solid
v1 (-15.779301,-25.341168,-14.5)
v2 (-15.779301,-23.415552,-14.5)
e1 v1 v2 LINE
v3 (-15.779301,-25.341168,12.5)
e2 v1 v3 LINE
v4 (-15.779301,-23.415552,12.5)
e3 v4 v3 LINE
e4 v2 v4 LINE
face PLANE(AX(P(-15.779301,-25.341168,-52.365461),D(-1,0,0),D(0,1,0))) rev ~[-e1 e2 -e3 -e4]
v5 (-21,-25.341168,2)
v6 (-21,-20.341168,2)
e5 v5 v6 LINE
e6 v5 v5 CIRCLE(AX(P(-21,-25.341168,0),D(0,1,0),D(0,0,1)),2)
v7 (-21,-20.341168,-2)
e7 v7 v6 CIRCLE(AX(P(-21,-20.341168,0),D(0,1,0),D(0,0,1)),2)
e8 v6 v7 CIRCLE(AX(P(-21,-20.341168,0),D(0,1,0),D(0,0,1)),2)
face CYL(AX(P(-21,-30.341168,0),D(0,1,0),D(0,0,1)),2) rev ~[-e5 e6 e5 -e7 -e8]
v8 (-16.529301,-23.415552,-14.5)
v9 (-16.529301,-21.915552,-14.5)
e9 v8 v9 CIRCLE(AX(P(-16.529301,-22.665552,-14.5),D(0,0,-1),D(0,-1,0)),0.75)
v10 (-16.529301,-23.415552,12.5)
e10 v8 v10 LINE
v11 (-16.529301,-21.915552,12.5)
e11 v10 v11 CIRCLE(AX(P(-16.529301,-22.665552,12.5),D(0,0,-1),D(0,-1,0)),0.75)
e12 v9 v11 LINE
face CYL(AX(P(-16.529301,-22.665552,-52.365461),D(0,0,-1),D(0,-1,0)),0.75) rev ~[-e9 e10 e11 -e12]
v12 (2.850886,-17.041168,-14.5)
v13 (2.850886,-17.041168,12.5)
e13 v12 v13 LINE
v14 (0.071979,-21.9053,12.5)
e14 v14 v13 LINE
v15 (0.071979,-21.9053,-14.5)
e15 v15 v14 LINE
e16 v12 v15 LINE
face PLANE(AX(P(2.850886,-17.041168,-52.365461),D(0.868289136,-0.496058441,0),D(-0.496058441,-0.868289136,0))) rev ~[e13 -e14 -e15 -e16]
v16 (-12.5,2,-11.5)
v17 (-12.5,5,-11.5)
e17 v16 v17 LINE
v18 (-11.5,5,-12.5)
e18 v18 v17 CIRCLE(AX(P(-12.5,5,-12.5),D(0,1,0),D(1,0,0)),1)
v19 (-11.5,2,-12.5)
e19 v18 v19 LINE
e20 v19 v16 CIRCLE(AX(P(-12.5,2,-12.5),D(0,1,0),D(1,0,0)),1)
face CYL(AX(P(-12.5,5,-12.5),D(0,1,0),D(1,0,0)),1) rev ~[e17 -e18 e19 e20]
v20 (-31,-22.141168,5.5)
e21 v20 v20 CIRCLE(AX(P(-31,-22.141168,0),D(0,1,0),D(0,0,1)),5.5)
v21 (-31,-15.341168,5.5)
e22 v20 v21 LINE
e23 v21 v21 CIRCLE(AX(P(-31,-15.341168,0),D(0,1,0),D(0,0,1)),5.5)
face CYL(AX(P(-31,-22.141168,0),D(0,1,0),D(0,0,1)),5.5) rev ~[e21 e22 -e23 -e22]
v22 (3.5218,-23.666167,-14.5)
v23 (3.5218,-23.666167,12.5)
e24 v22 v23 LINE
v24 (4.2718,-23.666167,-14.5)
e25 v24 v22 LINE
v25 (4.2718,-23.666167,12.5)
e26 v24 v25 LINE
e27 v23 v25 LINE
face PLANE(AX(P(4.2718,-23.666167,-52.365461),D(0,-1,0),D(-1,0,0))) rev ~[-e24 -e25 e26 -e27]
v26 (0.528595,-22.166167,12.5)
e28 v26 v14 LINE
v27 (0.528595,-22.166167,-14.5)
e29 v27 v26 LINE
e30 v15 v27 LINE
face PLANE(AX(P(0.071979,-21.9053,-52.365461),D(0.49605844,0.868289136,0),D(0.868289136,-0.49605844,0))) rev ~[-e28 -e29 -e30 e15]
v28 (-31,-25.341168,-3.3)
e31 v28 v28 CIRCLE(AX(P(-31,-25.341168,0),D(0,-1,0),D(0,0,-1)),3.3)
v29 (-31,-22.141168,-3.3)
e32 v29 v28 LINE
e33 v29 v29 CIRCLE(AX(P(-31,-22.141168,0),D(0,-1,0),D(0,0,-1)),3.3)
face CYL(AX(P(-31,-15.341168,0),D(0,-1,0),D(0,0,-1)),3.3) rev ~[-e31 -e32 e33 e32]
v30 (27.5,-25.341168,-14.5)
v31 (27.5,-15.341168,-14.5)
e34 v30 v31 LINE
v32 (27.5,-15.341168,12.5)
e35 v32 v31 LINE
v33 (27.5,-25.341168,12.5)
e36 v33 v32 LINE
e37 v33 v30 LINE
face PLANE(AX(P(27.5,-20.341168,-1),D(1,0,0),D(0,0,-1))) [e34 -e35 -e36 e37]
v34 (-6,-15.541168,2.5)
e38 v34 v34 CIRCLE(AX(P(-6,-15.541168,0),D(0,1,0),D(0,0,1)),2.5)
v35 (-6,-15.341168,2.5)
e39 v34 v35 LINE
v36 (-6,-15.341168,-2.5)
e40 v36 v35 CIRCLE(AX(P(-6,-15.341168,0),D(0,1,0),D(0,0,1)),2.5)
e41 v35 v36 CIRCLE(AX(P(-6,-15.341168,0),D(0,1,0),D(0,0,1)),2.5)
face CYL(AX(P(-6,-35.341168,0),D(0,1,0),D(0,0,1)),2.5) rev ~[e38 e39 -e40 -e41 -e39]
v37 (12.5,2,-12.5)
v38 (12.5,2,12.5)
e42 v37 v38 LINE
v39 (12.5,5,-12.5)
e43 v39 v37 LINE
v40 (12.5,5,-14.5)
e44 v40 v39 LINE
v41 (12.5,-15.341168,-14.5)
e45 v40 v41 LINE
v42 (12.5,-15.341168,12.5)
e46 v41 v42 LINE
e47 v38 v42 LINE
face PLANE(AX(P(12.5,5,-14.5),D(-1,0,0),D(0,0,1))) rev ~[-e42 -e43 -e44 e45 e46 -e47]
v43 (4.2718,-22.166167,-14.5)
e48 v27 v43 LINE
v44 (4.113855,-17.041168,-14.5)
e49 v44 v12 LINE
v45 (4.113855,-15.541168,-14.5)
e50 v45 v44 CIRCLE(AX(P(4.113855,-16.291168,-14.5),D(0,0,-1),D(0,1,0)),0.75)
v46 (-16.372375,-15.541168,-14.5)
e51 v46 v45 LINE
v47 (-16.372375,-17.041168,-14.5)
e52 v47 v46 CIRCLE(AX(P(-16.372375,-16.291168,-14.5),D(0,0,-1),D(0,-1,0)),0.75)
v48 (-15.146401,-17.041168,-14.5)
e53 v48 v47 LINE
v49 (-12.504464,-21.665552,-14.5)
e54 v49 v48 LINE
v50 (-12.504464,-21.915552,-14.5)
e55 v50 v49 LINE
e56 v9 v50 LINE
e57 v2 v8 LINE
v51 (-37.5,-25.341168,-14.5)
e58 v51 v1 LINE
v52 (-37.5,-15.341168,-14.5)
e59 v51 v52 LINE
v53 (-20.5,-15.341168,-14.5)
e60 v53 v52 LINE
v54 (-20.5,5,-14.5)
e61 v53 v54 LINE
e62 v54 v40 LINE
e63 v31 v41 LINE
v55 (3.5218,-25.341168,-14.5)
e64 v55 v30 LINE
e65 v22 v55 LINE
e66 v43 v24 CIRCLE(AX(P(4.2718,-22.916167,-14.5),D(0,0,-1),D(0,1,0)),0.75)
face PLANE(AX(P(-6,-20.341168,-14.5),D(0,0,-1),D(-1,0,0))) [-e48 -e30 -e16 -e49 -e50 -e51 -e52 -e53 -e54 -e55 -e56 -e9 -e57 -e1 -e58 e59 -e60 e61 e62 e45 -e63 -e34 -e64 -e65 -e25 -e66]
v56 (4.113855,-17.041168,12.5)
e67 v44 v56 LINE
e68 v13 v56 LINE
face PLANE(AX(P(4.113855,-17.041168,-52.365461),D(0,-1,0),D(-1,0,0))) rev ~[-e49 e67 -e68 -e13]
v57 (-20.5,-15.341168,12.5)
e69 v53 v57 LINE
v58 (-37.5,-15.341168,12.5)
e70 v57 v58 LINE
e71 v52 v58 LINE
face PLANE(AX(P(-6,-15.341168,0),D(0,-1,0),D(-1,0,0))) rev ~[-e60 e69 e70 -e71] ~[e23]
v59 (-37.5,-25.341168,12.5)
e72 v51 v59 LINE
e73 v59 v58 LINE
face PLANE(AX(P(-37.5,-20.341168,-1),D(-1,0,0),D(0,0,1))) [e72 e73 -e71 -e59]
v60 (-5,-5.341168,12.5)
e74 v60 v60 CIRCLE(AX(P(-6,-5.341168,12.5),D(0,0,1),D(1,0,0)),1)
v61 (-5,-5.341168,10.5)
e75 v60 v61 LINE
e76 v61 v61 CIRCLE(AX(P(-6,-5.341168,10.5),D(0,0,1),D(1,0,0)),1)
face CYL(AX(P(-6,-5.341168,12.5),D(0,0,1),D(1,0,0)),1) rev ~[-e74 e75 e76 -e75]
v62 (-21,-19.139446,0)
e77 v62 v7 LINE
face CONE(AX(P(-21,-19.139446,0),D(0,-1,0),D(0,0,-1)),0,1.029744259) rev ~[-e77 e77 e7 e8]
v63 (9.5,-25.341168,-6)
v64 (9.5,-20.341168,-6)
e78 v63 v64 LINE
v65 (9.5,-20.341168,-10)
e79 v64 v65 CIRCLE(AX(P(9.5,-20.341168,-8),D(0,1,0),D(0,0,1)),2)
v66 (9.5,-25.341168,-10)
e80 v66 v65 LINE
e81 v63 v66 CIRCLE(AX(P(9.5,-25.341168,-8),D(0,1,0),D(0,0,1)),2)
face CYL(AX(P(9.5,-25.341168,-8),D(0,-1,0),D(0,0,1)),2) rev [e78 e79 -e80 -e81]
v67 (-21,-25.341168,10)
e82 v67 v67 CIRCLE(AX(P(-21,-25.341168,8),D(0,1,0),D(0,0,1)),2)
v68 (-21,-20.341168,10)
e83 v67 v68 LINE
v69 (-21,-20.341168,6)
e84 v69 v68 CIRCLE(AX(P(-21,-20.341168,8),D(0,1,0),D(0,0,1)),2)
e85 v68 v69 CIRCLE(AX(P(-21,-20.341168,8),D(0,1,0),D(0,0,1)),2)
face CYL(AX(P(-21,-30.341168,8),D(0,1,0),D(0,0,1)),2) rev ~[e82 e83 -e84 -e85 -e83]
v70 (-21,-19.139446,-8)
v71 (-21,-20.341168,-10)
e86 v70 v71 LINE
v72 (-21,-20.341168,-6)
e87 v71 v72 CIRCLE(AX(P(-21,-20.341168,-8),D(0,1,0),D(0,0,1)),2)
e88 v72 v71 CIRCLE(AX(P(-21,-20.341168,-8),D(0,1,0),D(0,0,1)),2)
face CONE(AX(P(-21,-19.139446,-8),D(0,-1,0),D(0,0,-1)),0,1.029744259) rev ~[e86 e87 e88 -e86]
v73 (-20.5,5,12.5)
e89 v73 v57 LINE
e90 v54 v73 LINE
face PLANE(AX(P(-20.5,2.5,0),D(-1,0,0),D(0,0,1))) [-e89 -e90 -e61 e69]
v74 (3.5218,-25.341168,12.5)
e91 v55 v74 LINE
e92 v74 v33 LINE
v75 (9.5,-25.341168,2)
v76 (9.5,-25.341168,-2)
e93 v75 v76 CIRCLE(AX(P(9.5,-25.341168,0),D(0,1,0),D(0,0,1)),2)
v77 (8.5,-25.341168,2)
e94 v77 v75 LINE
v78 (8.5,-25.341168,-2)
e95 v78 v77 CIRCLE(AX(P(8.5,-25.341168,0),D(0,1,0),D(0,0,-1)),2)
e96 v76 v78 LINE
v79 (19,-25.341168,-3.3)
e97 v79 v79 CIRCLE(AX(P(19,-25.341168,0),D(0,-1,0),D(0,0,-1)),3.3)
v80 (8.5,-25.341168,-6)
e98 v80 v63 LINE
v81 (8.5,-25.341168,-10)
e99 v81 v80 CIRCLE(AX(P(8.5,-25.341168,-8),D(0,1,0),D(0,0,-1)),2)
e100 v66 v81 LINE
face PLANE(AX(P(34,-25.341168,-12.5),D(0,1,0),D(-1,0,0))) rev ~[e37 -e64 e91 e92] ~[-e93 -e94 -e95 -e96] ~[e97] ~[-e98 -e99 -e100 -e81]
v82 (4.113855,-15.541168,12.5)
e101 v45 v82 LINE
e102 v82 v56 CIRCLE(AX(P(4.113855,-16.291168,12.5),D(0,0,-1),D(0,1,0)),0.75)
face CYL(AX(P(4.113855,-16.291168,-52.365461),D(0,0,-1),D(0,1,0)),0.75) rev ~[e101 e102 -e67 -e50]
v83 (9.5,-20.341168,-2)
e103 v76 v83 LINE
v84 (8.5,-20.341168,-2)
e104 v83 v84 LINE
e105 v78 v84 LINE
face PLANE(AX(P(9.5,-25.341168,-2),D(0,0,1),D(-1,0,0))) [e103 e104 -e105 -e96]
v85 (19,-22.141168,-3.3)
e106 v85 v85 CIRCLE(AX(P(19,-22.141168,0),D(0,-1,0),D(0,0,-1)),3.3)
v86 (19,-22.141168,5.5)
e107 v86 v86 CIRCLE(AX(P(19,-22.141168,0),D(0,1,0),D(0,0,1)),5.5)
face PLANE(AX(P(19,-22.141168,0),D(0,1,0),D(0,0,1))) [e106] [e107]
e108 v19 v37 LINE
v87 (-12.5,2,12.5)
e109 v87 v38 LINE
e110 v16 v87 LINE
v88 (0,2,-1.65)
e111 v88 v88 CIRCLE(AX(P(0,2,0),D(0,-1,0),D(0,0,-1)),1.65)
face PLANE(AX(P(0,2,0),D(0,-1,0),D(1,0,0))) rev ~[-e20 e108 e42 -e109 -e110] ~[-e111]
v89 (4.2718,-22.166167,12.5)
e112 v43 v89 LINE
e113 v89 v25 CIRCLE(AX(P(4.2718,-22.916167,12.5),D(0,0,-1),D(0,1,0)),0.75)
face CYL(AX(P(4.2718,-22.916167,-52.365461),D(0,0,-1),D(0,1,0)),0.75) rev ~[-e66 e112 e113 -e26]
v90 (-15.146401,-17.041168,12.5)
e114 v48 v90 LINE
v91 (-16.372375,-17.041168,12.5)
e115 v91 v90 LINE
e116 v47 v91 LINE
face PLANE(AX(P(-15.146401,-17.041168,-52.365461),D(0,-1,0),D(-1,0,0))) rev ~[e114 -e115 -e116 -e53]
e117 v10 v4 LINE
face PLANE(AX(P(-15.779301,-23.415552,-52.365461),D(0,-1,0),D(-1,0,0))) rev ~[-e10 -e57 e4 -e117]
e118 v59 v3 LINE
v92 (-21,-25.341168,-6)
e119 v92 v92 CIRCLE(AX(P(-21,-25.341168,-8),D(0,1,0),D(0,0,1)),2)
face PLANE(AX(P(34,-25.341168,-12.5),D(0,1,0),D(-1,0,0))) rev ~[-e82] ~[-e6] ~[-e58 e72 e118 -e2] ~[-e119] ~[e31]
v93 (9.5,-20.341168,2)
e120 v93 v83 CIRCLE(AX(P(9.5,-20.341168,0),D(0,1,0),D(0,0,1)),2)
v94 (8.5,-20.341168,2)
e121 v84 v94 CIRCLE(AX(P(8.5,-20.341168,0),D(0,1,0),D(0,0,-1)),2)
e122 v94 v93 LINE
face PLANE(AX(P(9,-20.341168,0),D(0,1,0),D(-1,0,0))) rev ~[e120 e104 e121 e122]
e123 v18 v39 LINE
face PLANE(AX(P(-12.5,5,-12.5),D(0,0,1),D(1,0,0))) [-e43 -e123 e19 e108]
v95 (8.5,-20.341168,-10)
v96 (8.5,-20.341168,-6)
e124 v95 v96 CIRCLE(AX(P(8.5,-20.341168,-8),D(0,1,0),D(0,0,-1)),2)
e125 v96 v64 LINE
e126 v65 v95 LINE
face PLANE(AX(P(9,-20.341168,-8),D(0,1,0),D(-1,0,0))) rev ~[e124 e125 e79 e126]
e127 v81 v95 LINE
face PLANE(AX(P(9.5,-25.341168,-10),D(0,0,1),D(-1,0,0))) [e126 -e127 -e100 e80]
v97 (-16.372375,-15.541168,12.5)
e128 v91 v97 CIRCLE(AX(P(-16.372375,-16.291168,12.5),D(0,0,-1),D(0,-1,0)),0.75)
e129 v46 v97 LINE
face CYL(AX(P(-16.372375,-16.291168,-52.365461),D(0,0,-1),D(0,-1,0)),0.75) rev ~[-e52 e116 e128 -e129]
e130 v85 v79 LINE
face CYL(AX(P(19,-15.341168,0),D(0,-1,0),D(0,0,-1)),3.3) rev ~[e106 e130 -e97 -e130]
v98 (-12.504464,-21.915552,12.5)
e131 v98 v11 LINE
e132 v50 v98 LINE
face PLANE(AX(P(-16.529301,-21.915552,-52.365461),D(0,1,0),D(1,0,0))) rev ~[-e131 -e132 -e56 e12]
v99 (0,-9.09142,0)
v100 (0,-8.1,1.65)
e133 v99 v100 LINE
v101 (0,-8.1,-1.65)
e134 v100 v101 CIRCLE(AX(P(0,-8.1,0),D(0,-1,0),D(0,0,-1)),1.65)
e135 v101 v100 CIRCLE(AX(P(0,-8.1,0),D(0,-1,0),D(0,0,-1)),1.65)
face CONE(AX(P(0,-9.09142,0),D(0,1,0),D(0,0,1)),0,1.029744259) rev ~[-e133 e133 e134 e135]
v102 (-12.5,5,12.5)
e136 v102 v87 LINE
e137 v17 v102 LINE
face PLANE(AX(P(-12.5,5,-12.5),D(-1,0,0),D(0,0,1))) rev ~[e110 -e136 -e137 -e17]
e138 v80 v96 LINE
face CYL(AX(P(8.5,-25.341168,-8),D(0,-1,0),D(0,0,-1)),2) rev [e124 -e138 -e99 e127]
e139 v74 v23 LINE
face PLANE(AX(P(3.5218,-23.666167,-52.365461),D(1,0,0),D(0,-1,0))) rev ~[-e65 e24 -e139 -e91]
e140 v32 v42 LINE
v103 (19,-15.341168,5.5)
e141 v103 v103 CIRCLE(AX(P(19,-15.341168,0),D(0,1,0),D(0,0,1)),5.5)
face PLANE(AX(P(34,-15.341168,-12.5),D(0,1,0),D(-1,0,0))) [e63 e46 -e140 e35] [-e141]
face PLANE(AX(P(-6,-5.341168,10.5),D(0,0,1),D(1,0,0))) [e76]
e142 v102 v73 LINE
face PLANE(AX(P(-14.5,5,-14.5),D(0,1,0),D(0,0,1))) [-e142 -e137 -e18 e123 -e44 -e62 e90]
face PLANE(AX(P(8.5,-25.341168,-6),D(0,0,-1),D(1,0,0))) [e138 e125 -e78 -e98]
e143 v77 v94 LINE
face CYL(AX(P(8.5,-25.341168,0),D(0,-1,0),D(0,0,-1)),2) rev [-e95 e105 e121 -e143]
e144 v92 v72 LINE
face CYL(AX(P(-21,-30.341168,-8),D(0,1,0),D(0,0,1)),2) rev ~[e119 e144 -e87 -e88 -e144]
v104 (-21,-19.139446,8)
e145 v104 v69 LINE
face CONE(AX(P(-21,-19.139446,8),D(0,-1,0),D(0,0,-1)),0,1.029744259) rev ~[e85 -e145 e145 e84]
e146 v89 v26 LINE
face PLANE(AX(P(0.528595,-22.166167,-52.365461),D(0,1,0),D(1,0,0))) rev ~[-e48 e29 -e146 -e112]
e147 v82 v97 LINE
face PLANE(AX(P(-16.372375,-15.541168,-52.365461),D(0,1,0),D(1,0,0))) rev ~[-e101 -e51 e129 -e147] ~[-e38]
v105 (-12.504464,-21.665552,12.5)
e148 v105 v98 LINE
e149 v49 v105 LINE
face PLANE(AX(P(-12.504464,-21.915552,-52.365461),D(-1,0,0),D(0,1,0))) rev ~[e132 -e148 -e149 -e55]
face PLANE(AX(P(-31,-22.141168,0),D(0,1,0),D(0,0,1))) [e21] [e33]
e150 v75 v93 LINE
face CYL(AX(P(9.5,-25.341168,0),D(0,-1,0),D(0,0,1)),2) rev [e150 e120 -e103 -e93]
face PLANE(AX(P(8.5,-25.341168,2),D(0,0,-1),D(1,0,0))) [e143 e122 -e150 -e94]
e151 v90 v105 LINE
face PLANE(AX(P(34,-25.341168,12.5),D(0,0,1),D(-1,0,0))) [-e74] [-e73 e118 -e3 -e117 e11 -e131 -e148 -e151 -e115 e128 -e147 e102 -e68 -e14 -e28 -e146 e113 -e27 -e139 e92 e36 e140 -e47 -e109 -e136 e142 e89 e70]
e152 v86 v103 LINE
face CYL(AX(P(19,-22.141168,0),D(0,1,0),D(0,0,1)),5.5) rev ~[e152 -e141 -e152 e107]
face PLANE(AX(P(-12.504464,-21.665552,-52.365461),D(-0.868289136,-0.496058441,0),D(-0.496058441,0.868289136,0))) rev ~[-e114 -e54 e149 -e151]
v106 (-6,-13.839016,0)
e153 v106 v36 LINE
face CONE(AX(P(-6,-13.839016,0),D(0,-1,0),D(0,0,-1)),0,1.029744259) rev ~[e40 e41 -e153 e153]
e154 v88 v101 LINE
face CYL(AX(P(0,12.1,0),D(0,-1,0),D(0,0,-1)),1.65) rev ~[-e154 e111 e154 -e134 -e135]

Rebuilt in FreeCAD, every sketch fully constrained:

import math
import FreeCAD as App
import Part
import Sketcher

V = App.Vector
Q = App.Units.Quantity

doc = App.newDocument("Part")
body = doc.addObject("PartDesign::Body", "Body")

sketch1 = doc.addObject("Sketcher::SketchObject", "Sketch")
body.addObject(sketch1)
sketch1.AttachmentSupport = (doc.XZ_Plane, [""])
sketch1.MapMode = "FlatFace"
sketch1.addGeometry(Part.LineSegment(V(-14.5, -14.5, 0), V(-14.5, 14.5, 0)), False)
sketch1.addGeometry(Part.LineSegment(V(-14.5, 14.5, 0), V(14.5, 14.5, 0)), False)
sketch1.addGeometry(Part.LineSegment(V(14.5, 14.5, 0), V(14.5, -14.5, 0)), False)
sketch1.addGeometry(Part.LineSegment(V(14.5, -14.5, 0), V(-14.5, -14.5, 0)), False)
sketch1.addConstraint(Sketcher.Constraint("Coincident", 0, 2, 1, 1))
sketch1.addConstraint(Sketcher.Constraint("Coincident", 1, 2, 2, 1))
sketch1.addConstraint(Sketcher.Constraint("Coincident", 2, 2, 3, 1))
sketch1.addConstraint(Sketcher.Constraint("Coincident", 3, 2, 0, 1))
sketch1.addConstraint(Sketcher.Constraint("Vertical", 0))
sketch1.addConstraint(Sketcher.Constraint("Horizontal", 1))
sketch1.addConstraint(Sketcher.Constraint("Vertical", 2))
sketch1.addConstraint(Sketcher.Constraint("Horizontal", 3))
sketch1.addConstraint(Sketcher.Constraint("Symmetric", 0, 2, 2, 2, -1, 1))
sketch1.addConstraint(Sketcher.Constraint("Equal", 3, 0))
sketch1.addConstraint(Sketcher.Constraint("DistanceX", 1, 1, 1, 2, Q("29 mm")))
pad1 = doc.addObject("PartDesign::Pad", "Pad")
body.addObject(pad1)
pad1.Profile = sketch1
pad1.Length = 5
pad1.Reversed = True

sketch2 = doc.addObject("Sketcher::SketchObject", "Sketch001")
body.addObject(sketch2)
sketch2.AttachmentSupport = (doc.XZ_Plane, [""])
sketch2.MapMode = "FlatFace"
sketch2.AttachmentOffset = App.Placement(V(0, 0, -5), App.Rotation())
sketch2.addGeometry(Part.LineSegment(V(-12.5, 12.5, 0), V(-12.5, -12.5, 0)), False)
sketch2.addGeometry(Part.LineSegment(V(-12.5, -12.5, 0), V(12.5, -12.5, 0)), False)
sketch2.addGeometry(Part.LineSegment(V(12.5, -12.5, 0), V(12.5, 12.5, 0)), False)
sketch2.addGeometry(Part.LineSegment(V(12.5, 12.5, 0), V(-12.5, 12.5, 0)), False)
sketch2.addConstraint(Sketcher.Constraint("Coincident", 0, 2, 1, 1))
sketch2.addConstraint(Sketcher.Constraint("Coincident", 1, 2, 2, 1))
sketch2.addConstraint(Sketcher.Constraint("Coincident", 2, 2, 3, 1))
sketch2.addConstraint(Sketcher.Constraint("Coincident", 3, 2, 0, 1))
sketch2.addConstraint(Sketcher.Constraint("Vertical", 0))
sketch2.addConstraint(Sketcher.Constraint("Horizontal", 1))
sketch2.addConstraint(Sketcher.Constraint("Vertical", 2))
sketch2.addConstraint(Sketcher.Constraint("Horizontal", 3))
sketch2.addConstraint(Sketcher.Constraint("Symmetric", 0, 2, 2, 2, -1, 1))
sketch2.addConstraint(Sketcher.Constraint("Equal", 3, 0))
sketch2.addConstraint(Sketcher.Constraint("DistanceX", 1, 1, 1, 2, Q("25 mm")))
pocket1 = doc.addObject("PartDesign::Pocket", "Pocket")
body.addObject(pocket1)
pocket1.Profile = sketch2
pocket1.Length = 3
pocket1.Reversed = True

sketch3 = doc.addObject("Sketcher::SketchObject", "Sketch002")
body.addObject(sketch3)
sketch3.AttachmentSupport = (doc.XZ_Plane, [""])
sketch3.MapMode = "FlatFace"
sketch3.addGeometry(Part.LineSegment(V(14.5, -14.5, 0), V(14.5, 14.5, 0)), False)
sketch3.addGeometry(Part.LineSegment(V(14.5, 14.5, 0), V(-20.5, 14.5, 0)), False)
sketch3.addGeometry(Part.LineSegment(V(-20.5, 14.5, 0), V(-20.5, -14.5, 0)), False)
sketch3.addGeometry(Part.LineSegment(V(-20.5, -14.5, 0), V(14.5, -14.5, 0)), False)
sketch3.addConstraint(Sketcher.Constraint("Coincident", 0, 2, 1, 1))
sketch3.addConstraint(Sketcher.Constraint("Coincident", 1, 2, 2, 1))
sketch3.addConstraint(Sketcher.Constraint("Coincident", 2, 2, 3, 1))
sketch3.addConstraint(Sketcher.Constraint("Coincident", 3, 2, 0, 1))
sketch3.addConstraint(Sketcher.Constraint("Vertical", 0))
sketch3.addConstraint(Sketcher.Constraint("Horizontal", 1))
sketch3.addConstraint(Sketcher.Constraint("Vertical", 2))
sketch3.addConstraint(Sketcher.Constraint("Horizontal", 3))
sketch3.addConstraint(Sketcher.Constraint("DistanceX", 1, 2, 1, 1, Q("35 mm")))
sketch3.addConstraint(Sketcher.Constraint("DistanceY", 0, 1, 0, 2, Q("29 mm")))
sketch3.addConstraint(Sketcher.Constraint("DistanceX", -1, 1, 0, 2, Q("14.5 mm")))
sketch3.addConstraint(Sketcher.Constraint("DistanceY", -1, 1, 0, 2, Q("14.5 mm")))
pad2 = doc.addObject("PartDesign::Pad", "Pad001")
body.addObject(pad2)
pad2.Profile = sketch3
pad2.Length = 25.341168

sketch4 = doc.addObject("Sketcher::SketchObject", "Sketch003")
body.addObject(sketch4)
sketch4.AttachmentSupport = (doc.XZ_Plane, [""])
sketch4.MapMode = "FlatFace"
sketch4.AttachmentOffset = App.Placement(V(0, 0, -2), App.Rotation())
sketch4.addGeometry(Part.Circle(V(0, 0, 0), V(0, 0, 1), 1.65), False)
sketch4.addConstraint(Sketcher.Constraint("Coincident", 0, 3, -1, 1))
sketch4.addConstraint(Sketcher.Constraint("Diameter", 0, Q("3.3 mm")))
doc.recompute()
hole = doc.addObject("PartDesign::Hole", "Hole")
body.addObject(hole)
hole.Profile = sketch4
hole.ThreadType = "None"
hole.Diameter = 3.3
hole.DepthType = "Dimension"
hole.Depth = 10.1
hole.DrillPoint = "Angled"
hole.DrillPointAngle = 118
hole.Reversed = True

sketch5 = doc.addObject("Sketcher::SketchObject", "Sketch004")
body.addObject(sketch5)
sketch5.AttachmentSupport = (doc.XZ_Plane, [""])
sketch5.MapMode = "FlatFace"
sketch5.AttachmentOffset = App.Placement(V(0, 0, -5), App.Rotation())
sketch5.addGeometry(Part.Circle(V(-12.5, -12.5, 0), V(0, 0, 1), 1), False)
sketch5.addConstraint(Sketcher.Constraint("Diameter", 0, Q("2 mm")))
sketch5.addConstraint(Sketcher.Constraint("DistanceX", 0, 3, -1, 1, Q("12.5 mm")))
sketch5.addConstraint(Sketcher.Constraint("DistanceY", 0, 3, -1, 1, Q("12.5 mm")))
pocket2 = doc.addObject("PartDesign::Pocket", "Pocket001")
body.addObject(pocket2)
pocket2.Profile = sketch5
pocket2.Length = 3
pocket2.Reversed = True

sketch6 = doc.addObject("Sketcher::SketchObject", "Sketch005")
body.addObject(sketch6)
sketch6.AttachmentSupport = (doc.YZ_Plane, [""])
sketch6.MapMode = "FlatFace"
sketch6.AttachmentOffset = App.Placement(V(0, 0, -14.5), App.Rotation())
sketch6.addGeometry(Part.LineSegment(V(5, -14.5, 0), V(0, -14.5, 0)), False)
sketch6.addGeometry(Part.LineSegment(V(0, -14.5, 0), V(0, 14.5, 0)), False)
sketch6.addGeometry(Part.LineSegment(V(0, 14.5, 0), V(5, 14.5, 0)), False)
sketch6.addGeometry(Part.LineSegment(V(5, 14.5, 0), V(5, -14.5, 0)), False)
sketch6.addConstraint(Sketcher.Constraint("Coincident", 0, 2, 1, 1))
sketch6.addConstraint(Sketcher.Constraint("Coincident", 1, 2, 2, 1))
sketch6.addConstraint(Sketcher.Constraint("Coincident", 2, 2, 3, 1))
sketch6.addConstraint(Sketcher.Constraint("Coincident", 3, 2, 0, 1))
sketch6.addConstraint(Sketcher.Constraint("Horizontal", 0))
sketch6.addConstraint(Sketcher.Constraint("Vertical", 1))
sketch6.addConstraint(Sketcher.Constraint("Horizontal", 2))
sketch6.addConstraint(Sketcher.Constraint("Vertical", 3))
sketch6.addConstraint(Sketcher.Constraint("Symmetric", 0, 2, 1, 2, -1, 1))
sketch6.addConstraint(Sketcher.Constraint("DistanceX", 0, 2, 0, 1, Q("5 mm")))
sketch6.addConstraint(Sketcher.Constraint("DistanceY", 1, 1, 1, 2, Q("29 mm")))
pad3 = doc.addObject("PartDesign::Pad", "Pad002")
body.addObject(pad3)
pad3.Profile = sketch6
pad3.Length = 6
pad3.Reversed = True

sketch7 = doc.addObject("Sketcher::SketchObject", "Sketch006")
body.addObject(sketch7)
sketch7.AttachmentSupport = (doc.XZ_Plane, [""])
sketch7.MapMode = "FlatFace"
sketch7.AttachmentOffset = App.Placement(V(0, 0, -5), App.Rotation())
sketch7.addGeometry(Part.LineSegment(V(-20.5, 14.5, 0), V(14.5, 14.5, 0)), False)
sketch7.addGeometry(Part.LineSegment(V(14.5, 14.5, 0), V(14.5, -14.5, 0)), False)
sketch7.addGeometry(Part.LineSegment(V(14.5, -14.5, 0), V(12.5, -14.5, 0)), False)
sketch7.addGeometry(Part.LineSegment(V(12.5, -14.5, 0), V(12.5, 12.5, 0)), False)
sketch7.addGeometry(Part.LineSegment(V(12.5, 12.5, 0), V(-20.5, 12.5, 0)), False)
sketch7.addGeometry(Part.LineSegment(V(-20.5, 12.5, 0), V(-20.5, 14.5, 0)), False)
sketch7.addConstraint(Sketcher.Constraint("Coincident", 0, 2, 1, 1))
sketch7.addConstraint(Sketcher.Constraint("Coincident", 1, 2, 2, 1))
sketch7.addConstraint(Sketcher.Constraint("Coincident", 2, 2, 3, 1))
sketch7.addConstraint(Sketcher.Constraint("Coincident", 3, 2, 4, 1))
sketch7.addConstraint(Sketcher.Constraint("Coincident", 4, 2, 5, 1))
sketch7.addConstraint(Sketcher.Constraint("Coincident", 5, 2, 0, 1))
sketch7.addConstraint(Sketcher.Constraint("Horizontal", 0))
sketch7.addConstraint(Sketcher.Constraint("Vertical", 1))
sketch7.addConstraint(Sketcher.Constraint("Horizontal", 2))
sketch7.addConstraint(Sketcher.Constraint("Vertical", 3))
sketch7.addConstraint(Sketcher.Constraint("Horizontal", 4))
sketch7.addConstraint(Sketcher.Constraint("Vertical", 5))
sketch7.addConstraint(Sketcher.Constraint("Equal", 2, 5))
sketch7.addConstraint(Sketcher.Constraint("DistanceX", 0, 1, 0, 2, Q("35 mm")))
sketch7.addConstraint(Sketcher.Constraint("DistanceX", 2, 2, 2, 1, Q("2 mm")))
sketch7.addConstraint(Sketcher.Constraint("DistanceY", 1, 2, 1, 1, Q("29 mm")))
sketch7.addConstraint(Sketcher.Constraint("DistanceX", -1, 1, 0, 2, Q("14.5 mm")))
sketch7.addConstraint(Sketcher.Constraint("DistanceY", -1, 1, 0, 2, Q("14.5 mm")))
pocket3 = doc.addObject("PartDesign::Pocket", "Pocket002")
body.addObject(pocket3)
pocket3.Profile = sketch7
pocket3.Type = "ThroughAll"
pocket3.Reversed = True

sketch8 = doc.addObject("Sketcher::SketchObject", "Sketch007")
body.addObject(sketch8)
sketch8.AttachmentSupport = (doc.XZ_Plane, [""])
sketch8.MapMode = "FlatFace"
sketch8.AttachmentOffset = App.Placement(V(0, 0, 25.341168), App.Rotation())
sketch8.addGeometry(Part.LineSegment(V(34, -12.5, 0), V(34, 12.5, 0)), False)
sketch8.addGeometry(Part.LineSegment(V(34, 12.5, 0), V(-46, 12.5, 0)), False)
sketch8.addGeometry(Part.LineSegment(V(-46, 12.5, 0), V(-46, -12.5, 0)), False)
sketch8.addGeometry(Part.LineSegment(V(-46, -12.5, 0), V(34, -12.5, 0)), False)
sketch8.addConstraint(Sketcher.Constraint("Coincident", 0, 2, 1, 1))
sketch8.addConstraint(Sketcher.Constraint("Coincident", 1, 2, 2, 1))
sketch8.addConstraint(Sketcher.Constraint("Coincident", 2, 2, 3, 1))
sketch8.addConstraint(Sketcher.Constraint("Coincident", 3, 2, 0, 1))
sketch8.addConstraint(Sketcher.Constraint("Vertical", 0))
sketch8.addConstraint(Sketcher.Constraint("Horizontal", 1))
sketch8.addConstraint(Sketcher.Constraint("Vertical", 2))
sketch8.addConstraint(Sketcher.Constraint("Horizontal", 3))
sketch8.addConstraint(Sketcher.Constraint("DistanceX", 1, 2, 1, 1, Q("80 mm")))
sketch8.addConstraint(Sketcher.Constraint("DistanceY", 0, 1, 0, 2, Q("25 mm")))
sketch8.addConstraint(Sketcher.Constraint("DistanceX", -1, 1, 0, 2, Q("34 mm")))
sketch8.addConstraint(Sketcher.Constraint("DistanceY", -1, 1, 0, 2, Q("12.5 mm")))
pad4 = doc.addObject("PartDesign::Pad", "Pad003")
body.addObject(pad4)
pad4.Profile = sketch8
pad4.Length = 10
pad4.Reversed = True

sketch9 = doc.addObject("Sketcher::SketchObject", "Sketch008")
body.addObject(sketch9)
sketch9.AttachmentSupport = (doc.XZ_Plane, [""])
sketch9.MapMode = "FlatFace"
sketch9.AttachmentOffset = App.Placement(V(0, 0, 15.341168), App.Rotation())
sketch9.addGeometry(Part.Circle(V(-31, 0, 0), V(0, 0, 1), 3.3), False)
sketch9.addGeometry(Part.Circle(V(19, 0, 0), V(0, 0, 1), 3.3), False)
sketch9.addConstraint(Sketcher.Constraint("Equal", 0, 1))
sketch9.addConstraint(Sketcher.Constraint("PointOnObject", 0, 3, -1))
sketch9.addConstraint(Sketcher.Constraint("PointOnObject", 1, 3, -1))
sketch9.addConstraint(Sketcher.Constraint("Diameter", 0, Q("6.6 mm")))
sketch9.addConstraint(Sketcher.Constraint("DistanceX", 0, 3, -1, 1, Q("31 mm")))
sketch9.addConstraint(Sketcher.Constraint("DistanceX", -1, 1, 1, 3, Q("19 mm")))
doc.recompute()
hole2 = doc.addObject("PartDesign::Hole", "Hole001")
body.addObject(hole2)
hole2.Profile = sketch9
hole2.ThreadType = "None"
hole2.Diameter = 6.6
hole2.DepthType = "Dimension"
hole2.Depth = 10.1
hole2.DrillPoint = "Angled"
hole2.DrillPointAngle = 118
hole2.HoleCutType = "Counterbore"
hole2.HoleCutDiameter = 11
hole2.HoleCutDepth = 6.8
hole2.Reversed = True

sketch10 = doc.addObject("Sketcher::SketchObject", "Sketch009")
body.addObject(sketch10)
sketch10.AttachmentSupport = (doc.XY_Plane, [""])
sketch10.MapMode = "FlatFace"
sketch10.AttachmentOffset = App.Placement(V(0, 0, -12.5), App.Rotation())
sketch10.addGeometry(Part.LineSegment(V(34, -15.341168, 0), V(34, -25.341168, 0)), False)
sketch10.addGeometry(Part.LineSegment(V(34, -25.341168, 0), V(-46, -25.341168, 0)), False)
sketch10.addGeometry(Part.LineSegment(V(-46, -25.341168, 0), V(-46, -15.341168, 0)), False)
sketch10.addGeometry(Part.LineSegment(V(-46, -15.341168, 0), V(34, -15.341168, 0)), False)
sketch10.addConstraint(Sketcher.Constraint("Coincident", 0, 2, 1, 1))
sketch10.addConstraint(Sketcher.Constraint("Coincident", 1, 2, 2, 1))
sketch10.addConstraint(Sketcher.Constraint("Coincident", 2, 2, 3, 1))
sketch10.addConstraint(Sketcher.Constraint("Coincident", 3, 2, 0, 1))
sketch10.addConstraint(Sketcher.Constraint("Vertical", 0))
sketch10.addConstraint(Sketcher.Constraint("Horizontal", 1))
sketch10.addConstraint(Sketcher.Constraint("Vertical", 2))
sketch10.addConstraint(Sketcher.Constraint("Horizontal", 3))
sketch10.addConstraint(Sketcher.Constraint("DistanceX", 1, 2, 1, 1, Q("80 mm")))
sketch10.addConstraint(Sketcher.Constraint("DistanceY", 0, 2, 0, 1, Q("10 mm")))
sketch10.addConstraint(Sketcher.Constraint("DistanceX", -1, 1, 0, 2, Q("34 mm")))
sketch10.addConstraint(Sketcher.Constraint("DistanceY", 0, 2, -1, 1, Q("25.341168 mm")))
pad5 = doc.addObject("PartDesign::Pad", "Pad004")
body.addObject(pad5)
pad5.Profile = sketch10
pad5.Length = 2
pad5.Reversed = True

sketch11 = doc.addObject("Sketcher::SketchObject", "Sketch010")
body.addObject(sketch11)
sketch11.AttachmentSupport = (doc.YZ_Plane, [""])
sketch11.MapMode = "FlatFace"
sketch11.AttachmentOffset = App.Placement(V(0, 0, -46), App.Rotation())
sketch11.addGeometry(Part.LineSegment(V(-15.341168, -14.5, 0), V(-25.341168, -14.5, 0)), False)
sketch11.addGeometry(Part.LineSegment(V(-25.341168, -14.5, 0), V(-25.341168, 12.5, 0)), False)
sketch11.addGeometry(Part.LineSegment(V(-25.341168, 12.5, 0), V(-15.341168, 12.5, 0)), False)
sketch11.addGeometry(Part.LineSegment(V(-15.341168, 12.5, 0), V(-15.341168, -14.5, 0)), False)
sketch11.addConstraint(Sketcher.Constraint("Coincident", 0, 2, 1, 1))
sketch11.addConstraint(Sketcher.Constraint("Coincident", 1, 2, 2, 1))
sketch11.addConstraint(Sketcher.Constraint("Coincident", 2, 2, 3, 1))
sketch11.addConstraint(Sketcher.Constraint("Coincident", 3, 2, 0, 1))
sketch11.addConstraint(Sketcher.Constraint("Horizontal", 0))
sketch11.addConstraint(Sketcher.Constraint("Vertical", 1))
sketch11.addConstraint(Sketcher.Constraint("Horizontal", 2))
sketch11.addConstraint(Sketcher.Constraint("Vertical", 3))
sketch11.addConstraint(Sketcher.Constraint("DistanceX", 0, 2, 0, 1, Q("10 mm")))
sketch11.addConstraint(Sketcher.Constraint("DistanceY", 1, 1, 1, 2, Q("27 mm")))
sketch11.addConstraint(Sketcher.Constraint("DistanceY", 0, 2, -1, 1, Q("14.5 mm")))
sketch11.addConstraint(Sketcher.Constraint("DistanceX", 0, 2, -1, 1, Q("25.341168 mm")))
pocket4 = doc.addObject("PartDesign::Pocket", "Pocket003")
body.addObject(pocket4)
pocket4.Profile = sketch11
pocket4.Length = 2
pocket4.Reversed = True

sketch12 = doc.addObject("Sketcher::SketchObject", "Sketch011")
body.addObject(sketch12)
sketch12.AttachmentSupport = (doc.XZ_Plane, [""])
sketch12.MapMode = "FlatFace"
sketch12.AttachmentOffset = App.Placement(V(0, 0, 25.341168), App.Rotation())
sketch12.addGeometry(Part.Circle(V(-21, 0, 0), V(0, 0, 1), 2), False)
sketch12.addConstraint(Sketcher.Constraint("PointOnObject", 0, 3, -1))
sketch12.addConstraint(Sketcher.Constraint("Diameter", 0, Q("4 mm")))
sketch12.addConstraint(Sketcher.Constraint("DistanceX", 0, 3, -1, 1, Q("21 mm")))
doc.recompute()
hole3 = doc.addObject("PartDesign::Hole", "Hole002")
body.addObject(hole3)
hole3.Profile = sketch12
hole3.ThreadType = "None"
hole3.Diameter = 4
hole3.DepthType = "Dimension"
hole3.Depth = 5
hole3.DrillPoint = "Angled"
hole3.DrillPointAngle = 118

sketch13 = doc.addObject("Sketcher::SketchObject", "Sketch012")
body.addObject(sketch13)
sketch13.AttachmentSupport = (doc.XZ_Plane, [""])
sketch13.MapMode = "FlatFace"
sketch13.AttachmentOffset = App.Placement(V(0, 0, 25.341168), App.Rotation())
sketch13.addGeometry(Part.LineSegment(V(9.5, 2, 0), V(8.5, 2, 0)), False)
sketch13.addGeometry(Part.ArcOfCircle(Part.Circle(V(8.5, 0, 0), V(0, 0, 1), 2), math.radians(90), math.radians(270)), False)
sketch13.addGeometry(Part.LineSegment(V(8.5, -2, 0), V(9.5, -2, 0)), False)
sketch13.addGeometry(Part.ArcOfCircle(Part.Circle(V(9.5, 0, 0), V(0, 0, 1), 2), math.radians(-90), math.radians(90)), False)
sketch13.addConstraint(Sketcher.Constraint("Tangent", 0, 2, 1, 1))
sketch13.addConstraint(Sketcher.Constraint("Tangent", 1, 2, 2, 1))
sketch13.addConstraint(Sketcher.Constraint("Tangent", 2, 2, 3, 1))
sketch13.addConstraint(Sketcher.Constraint("Tangent", 3, 2, 0, 1))
sketch13.addConstraint(Sketcher.Constraint("Horizontal", 0))
sketch13.addConstraint(Sketcher.Constraint("Horizontal", 2))
sketch13.addConstraint(Sketcher.Constraint("PointOnObject", 1, 3, -1))
sketch13.addConstraint(Sketcher.Constraint("Radius", 1, Q("2 mm")))
sketch13.addConstraint(Sketcher.Constraint("DistanceX", 0, 2, 0, 1, Q("1 mm")))
sketch13.addConstraint(Sketcher.Constraint("DistanceX", -1, 1, 1, 3, Q("8.5 mm")))
pocket5 = doc.addObject("PartDesign::Pocket", "Pocket004")
body.addObject(pocket5)
pocket5.Profile = sketch13
pocket5.Length = 5

sketch14 = doc.addObject("Sketcher::SketchObject", "Sketch013")
body.addObject(sketch14)
sketch14.AttachmentSupport = (doc.XY_Plane, [""])
sketch14.MapMode = "FlatFace"
sketch14.AttachmentOffset = App.Placement(V(0, 0, 12.5), App.Rotation())
sketch14.addGeometry(Part.Circle(V(-6, -5.341168, 0), V(0, 0, 1), 1), False)
sketch14.addConstraint(Sketcher.Constraint("Diameter", 0, Q("2 mm")))
sketch14.addConstraint(Sketcher.Constraint("DistanceX", 0, 3, -1, 1, Q("6 mm")))
sketch14.addConstraint(Sketcher.Constraint("DistanceY", 0, 3, -1, 1, Q("5.341168 mm")))
pocket6 = doc.addObject("PartDesign::Pocket", "Pocket005")
body.addObject(pocket6)
pocket6.Profile = sketch14
pocket6.Length = 2

sketch15 = doc.addObject("Sketcher::SketchObject", "Sketch014")
body.addObject(sketch15)
sketch15.AttachmentSupport = (doc.XZ_Plane, [""])
sketch15.MapMode = "FlatFace"
sketch15.AttachmentOffset = App.Placement(V(0, 0, 25.341168), App.Rotation())
sketch15.addGeometry(Part.Circle(V(-6, 0, 0), V(0, 0, 1), 2.5), False)
sketch15.addConstraint(Sketcher.Constraint("PointOnObject", 0, 3, -1))
sketch15.addConstraint(Sketcher.Constraint("Diameter", 0, Q("5 mm")))
sketch15.addConstraint(Sketcher.Constraint("DistanceX", 0, 3, -1, 1, Q("6 mm")))
doc.recompute()
hole4 = doc.addObject("PartDesign::Hole", "Hole003")
body.addObject(hole4)
hole4.Profile = sketch15
hole4.ThreadType = "None"
hole4.Diameter = 5
hole4.DepthType = "Dimension"
hole4.Depth = 10
hole4.DrillPoint = "Angled"
hole4.DrillPointAngle = 118

sketch16 = doc.addObject("Sketcher::SketchObject", "Sketch015")
body.addObject(sketch16)
sketch16.AttachmentSupport = (doc.XY_Plane, [""])
sketch16.MapMode = "FlatFace"
sketch16.AttachmentOffset = App.Placement(V(0, 0, 10.4718), App.Rotation())
sketch16.addGeometry(Part.LineSegment(V(2.850886, -17.041168, 0), V(4.113855, -17.041168, 0)), False)
sketch16.addGeometry(Part.ArcOfCircle(Part.Circle(V(4.113855, -16.291168, 0), V(0, 0, 1), 0.75), math.radians(-90), math.radians(90)), False)
sketch16.addGeometry(Part.LineSegment(V(4.113855, -15.541168, 0), V(-16.372375, -15.541168, 0)), False)
sketch16.addGeometry(Part.ArcOfCircle(Part.Circle(V(-16.372375, -16.291168, 0), V(0, 0, 1), 0.75), math.radians(90), math.radians(270)), False)
sketch16.addGeometry(Part.LineSegment(V(-16.372375, -17.041168, 0), V(-15.146401, -17.041168, 0)), False)
sketch16.addGeometry(Part.LineSegment(V(-15.146401, -17.041168, 0), V(-12.504464, -21.665552, 0)), False)
sketch16.addGeometry(Part.LineSegment(V(-12.504464, -21.665552, 0), V(-12.504464, -21.915552, 0)), False)
sketch16.addGeometry(Part.LineSegment(V(-12.504464, -21.915552, 0), V(-16.529301, -21.915552, 0)), False)
sketch16.addGeometry(Part.ArcOfCircle(Part.Circle(V(-16.529301, -22.665552, 0), V(0, 0, 1), 0.75), math.radians(90), math.radians(270)), False)
sketch16.addGeometry(Part.LineSegment(V(-16.529301, -23.415552, 0), V(-15.779301, -23.415552, 0)), False)
sketch16.addGeometry(Part.LineSegment(V(-15.779301, -23.415552, 0), V(-15.779301, -25.341168, 0)), False)
sketch16.addGeometry(Part.LineSegment(V(-15.779301, -25.341168, 0), V(3.5218, -25.341168, 0)), False)
sketch16.addGeometry(Part.LineSegment(V(3.5218, -25.341168, 0), V(3.5218, -23.666167, 0)), False)
sketch16.addGeometry(Part.LineSegment(V(3.5218, -23.666167, 0), V(4.2718, -23.666167, 0)), False)
sketch16.addGeometry(Part.ArcOfCircle(Part.Circle(V(4.2718, -22.916167, 0), V(0, 0, 1), 0.75), math.radians(-90), math.radians(90)), False)
sketch16.addGeometry(Part.LineSegment(V(4.2718, -22.166167, 0), V(0.528595, -22.166167, 0)), False)
sketch16.addGeometry(Part.LineSegment(V(0.528595, -22.166167, 0), V(0.071979, -21.9053, 0)), False)
sketch16.addGeometry(Part.LineSegment(V(0.071979, -21.9053, 0), V(2.850886, -17.041168, 0)), False)
sketch16.addConstraint(Sketcher.Constraint("Tangent", 0, 2, 1, 1))
sketch16.addConstraint(Sketcher.Constraint("Tangent", 1, 2, 2, 1))
sketch16.addConstraint(Sketcher.Constraint("Tangent", 2, 2, 3, 1))
sketch16.addConstraint(Sketcher.Constraint("Tangent", 3, 2, 4, 1))
sketch16.addConstraint(Sketcher.Constraint("Coincident", 4, 2, 5, 1))
sketch16.addConstraint(Sketcher.Constraint("Coincident", 5, 2, 6, 1))
sketch16.addConstraint(Sketcher.Constraint("Coincident", 6, 2, 7, 1))
sketch16.addConstraint(Sketcher.Constraint("Tangent", 7, 2, 8, 1))
sketch16.addConstraint(Sketcher.Constraint("Tangent", 8, 2, 9, 1))
sketch16.addConstraint(Sketcher.Constraint("Coincident", 9, 2, 10, 1))
sketch16.addConstraint(Sketcher.Constraint("Coincident", 10, 2, 11, 1))
sketch16.addConstraint(Sketcher.Constraint("Coincident", 11, 2, 12, 1))
sketch16.addConstraint(Sketcher.Constraint("Coincident", 12, 2, 13, 1))
sketch16.addConstraint(Sketcher.Constraint("Tangent", 13, 2, 14, 1))
sketch16.addConstraint(Sketcher.Constraint("Tangent", 14, 2, 15, 1))
sketch16.addConstraint(Sketcher.Constraint("Coincident", 15, 2, 16, 1))
sketch16.addConstraint(Sketcher.Constraint("Coincident", 16, 2, 17, 1))
sketch16.addConstraint(Sketcher.Constraint("Coincident", 17, 2, 0, 1))
sketch16.addConstraint(Sketcher.Constraint("Horizontal", 0))
sketch16.addConstraint(Sketcher.Constraint("Horizontal", 2))
sketch16.addConstraint(Sketcher.Constraint("Horizontal", 4))
sketch16.addConstraint(Sketcher.Constraint("Vertical", 6))
sketch16.addConstraint(Sketcher.Constraint("Horizontal", 7))
sketch16.addConstraint(Sketcher.Constraint("Horizontal", 9))
sketch16.addConstraint(Sketcher.Constraint("Vertical", 10))
sketch16.addConstraint(Sketcher.Constraint("Horizontal", 11))
sketch16.addConstraint(Sketcher.Constraint("Vertical", 12))
sketch16.addConstraint(Sketcher.Constraint("Horizontal", 13))
sketch16.addConstraint(Sketcher.Constraint("Horizontal", 15))
sketch16.addConstraint(Sketcher.Constraint("Equal", 1, 3))
sketch16.addConstraint(Sketcher.Constraint("Equal", 3, 8))
sketch16.addConstraint(Sketcher.Constraint("Equal", 8, 14))
sketch16.addConstraint(Sketcher.Constraint("Perpendicular", 16, 17))
sketch16.addConstraint(Sketcher.Constraint("Equal", 9, 13))
sketch16.addConstraint(Sketcher.Constraint("Radius", 1, Q("0.75 mm")))
sketch16.addConstraint(Sketcher.Constraint("DistanceY", 8, 3, 5, 2, Q("1 mm")))
sketch16.addConstraint(Sketcher.Constraint("DistanceX", 9, 1, 9, 2, Q("0.75 mm")))
sketch16.addConstraint(Sketcher.Constraint("DistanceY", 11, 2, 0, 2, Q("8.3 mm")))
sketch16.addConstraint(Sketcher.Constraint("DistanceY", 12, 1, 12, 2, Q("1.675 mm")))
sketch16.addConstraint(Sketcher.Constraint("DistanceX", 11, 1, 11, 2, Q("19.301101 mm")))
sketch16.addConstraint(Sketcher.Constraint("DistanceX", 0, 1, 0, 2, Q("1.26297 mm")))
sketch16.addConstraint(Sketcher.Constraint("DistanceX", 2, 2, 2, 1, Q("20.48623 mm")))
sketch16.addConstraint(Sketcher.Constraint("DistanceX", 8, 3, -1, 1, Q("16.529301 mm")))
sketch16.addConstraint(Sketcher.Constraint("DistanceX", 4, 2, -1, 1, Q("15.146401 mm")))
sketch16.addConstraint(Sketcher.Constraint("DistanceY", 16, 2, -1, 1, Q("21.9053 mm")))
sketch16.addConstraint(Sketcher.Constraint("Distance", 5, Q("5.325858 mm")))
sketch16.addConstraint(Sketcher.Constraint("Distance", 16, Q("0.52588 mm")))
sketch16.addConstraint(Sketcher.Constraint("DistanceX", 4, 1, 4, 2, Q("1.225974 mm")))
sketch16.addConstraint(Sketcher.Constraint("DistanceX", 7, 2, 7, 1, Q("4.024837 mm")))
sketch16.addConstraint(Sketcher.Constraint("DistanceX", 15, 2, 15, 1, Q("3.743205 mm")))
pocket7 = doc.addObject("PartDesign::Pocket", "Pocket006")
body.addObject(pocket7)
pocket7.Profile = sketch16
pocket7.Type = "ThroughAll"
pocket7.Midplane = True

sketch17 = doc.addObject("Sketcher::SketchObject", "Sketch016")
body.addObject(sketch17)
sketch17.AttachmentSupport = (doc.YZ_Plane, [""])
sketch17.MapMode = "FlatFace"
sketch17.AttachmentOffset = App.Placement(V(0, 0, -44), App.Rotation())
sketch17.addGeometry(Part.LineSegment(V(-15.341168, -14.5, 0), V(-25.341168, -14.5, 0)), False)
sketch17.addGeometry(Part.LineSegment(V(-25.341168, -14.5, 0), V(-25.341168, 12.5, 0)), False)
sketch17.addGeometry(Part.LineSegment(V(-25.341168, 12.5, 0), V(-15.341168, 12.5, 0)), False)
sketch17.addGeometry(Part.LineSegment(V(-15.341168, 12.5, 0), V(-15.341168, -14.5, 0)), False)
sketch17.addConstraint(Sketcher.Constraint("Coincident", 0, 2, 1, 1))
sketch17.addConstraint(Sketcher.Constraint("Coincident", 1, 2, 2, 1))
sketch17.addConstraint(Sketcher.Constraint("Coincident", 2, 2, 3, 1))
sketch17.addConstraint(Sketcher.Constraint("Coincident", 3, 2, 0, 1))
sketch17.addConstraint(Sketcher.Constraint("Horizontal", 0))
sketch17.addConstraint(Sketcher.Constraint("Vertical", 1))
sketch17.addConstraint(Sketcher.Constraint("Horizontal", 2))
sketch17.addConstraint(Sketcher.Constraint("Vertical", 3))
sketch17.addConstraint(Sketcher.Constraint("DistanceX", 0, 2, 0, 1, Q("10 mm")))
sketch17.addConstraint(Sketcher.Constraint("DistanceY", 1, 1, 1, 2, Q("27 mm")))
sketch17.addConstraint(Sketcher.Constraint("DistanceY", 0, 2, -1, 1, Q("14.5 mm")))
sketch17.addConstraint(Sketcher.Constraint("DistanceX", 0, 2, -1, 1, Q("25.341168 mm")))
pocket8 = doc.addObject("PartDesign::Pocket", "Pocket007")
body.addObject(pocket8)
pocket8.Profile = sketch17
pocket8.Length = 6.5
pocket8.Reversed = True

sketch18 = doc.addObject("Sketcher::SketchObject", "Sketch017")
body.addObject(sketch18)
sketch18.AttachmentSupport = (doc.YZ_Plane, [""])
sketch18.MapMode = "FlatFace"
sketch18.AttachmentOffset = App.Placement(V(0, 0, 34), App.Rotation())
sketch18.addGeometry(Part.LineSegment(V(-15.341168, 12.5, 0), V(-25.341168, 12.5, 0)), False)
sketch18.addGeometry(Part.LineSegment(V(-25.341168, 12.5, 0), V(-25.341168, -14.5, 0)), False)
sketch18.addGeometry(Part.LineSegment(V(-25.341168, -14.5, 0), V(-15.341168, -14.5, 0)), False)
sketch18.addGeometry(Part.LineSegment(V(-15.341168, -14.5, 0), V(-15.341168, 12.5, 0)), False)
sketch18.addConstraint(Sketcher.Constraint("Coincident", 0, 2, 1, 1))
sketch18.addConstraint(Sketcher.Constraint("Coincident", 1, 2, 2, 1))
sketch18.addConstraint(Sketcher.Constraint("Coincident", 2, 2, 3, 1))
sketch18.addConstraint(Sketcher.Constraint("Coincident", 3, 2, 0, 1))
sketch18.addConstraint(Sketcher.Constraint("Horizontal", 0))
sketch18.addConstraint(Sketcher.Constraint("Vertical", 1))
sketch18.addConstraint(Sketcher.Constraint("Horizontal", 2))
sketch18.addConstraint(Sketcher.Constraint("Vertical", 3))
sketch18.addConstraint(Sketcher.Constraint("DistanceX", 0, 2, 0, 1, Q("10 mm")))
sketch18.addConstraint(Sketcher.Constraint("DistanceY", 1, 2, 1, 1, Q("27 mm")))
sketch18.addConstraint(Sketcher.Constraint("DistanceY", -1, 1, 0, 2, Q("12.5 mm")))
sketch18.addConstraint(Sketcher.Constraint("DistanceX", 0, 2, -1, 1, Q("25.341168 mm")))
pocket9 = doc.addObject("PartDesign::Pocket", "Pocket008")
body.addObject(pocket9)
pocket9.Profile = sketch18
pocket9.Length = 6.5

sketch19 = doc.addObject("Sketcher::SketchObject", "Sketch018")
body.addObject(sketch19)
sketch19.AttachmentSupport = (doc.XZ_Plane, [""])
sketch19.MapMode = "FlatFace"
sketch19.AttachmentOffset = App.Placement(V(0, 0, 25.341168), App.Rotation())
sketch19.addGeometry(Part.LineSegment(V(9.5, -6, 0), V(8.5, -6, 0)), False)
sketch19.addGeometry(Part.ArcOfCircle(Part.Circle(V(8.5, -8, 0), V(0, 0, 1), 2), math.radians(90), math.radians(270)), False)
sketch19.addGeometry(Part.LineSegment(V(8.5, -10, 0), V(9.5, -10, 0)), False)
sketch19.addGeometry(Part.ArcOfCircle(Part.Circle(V(9.5, -8, 0), V(0, 0, 1), 2), math.radians(-90), math.radians(90)), False)
sketch19.addConstraint(Sketcher.Constraint("Tangent", 0, 2, 1, 1))
sketch19.addConstraint(Sketcher.Constraint("Tangent", 1, 2, 2, 1))
sketch19.addConstraint(Sketcher.Constraint("Tangent", 2, 2, 3, 1))
sketch19.addConstraint(Sketcher.Constraint("Tangent", 3, 2, 0, 1))
sketch19.addConstraint(Sketcher.Constraint("Horizontal", 0))
sketch19.addConstraint(Sketcher.Constraint("Horizontal", 2))
sketch19.addConstraint(Sketcher.Constraint("Radius", 1, Q("2 mm")))
sketch19.addConstraint(Sketcher.Constraint("DistanceX", 0, 2, 0, 1, Q("1 mm")))
sketch19.addConstraint(Sketcher.Constraint("DistanceY", 1, 3, -1, 1, Q("8 mm")))
sketch19.addConstraint(Sketcher.Constraint("DistanceX", -1, 1, 1, 3, Q("8.5 mm")))
pocket10 = doc.addObject("PartDesign::Pocket", "Pocket009")
body.addObject(pocket10)
pocket10.Profile = sketch19
pocket10.Length = 5

sketch20 = doc.addObject("Sketcher::SketchObject", "Sketch019")
body.addObject(sketch20)
sketch20.AttachmentSupport = (doc.XZ_Plane, [""])
sketch20.MapMode = "FlatFace"
sketch20.AttachmentOffset = App.Placement(V(0, 0, 25.341168), App.Rotation())
sketch20.addGeometry(Part.Circle(V(-21, -8, 0), V(0, 0, 1), 2), False)
sketch20.addConstraint(Sketcher.Constraint("Diameter", 0, Q("4 mm")))
sketch20.addConstraint(Sketcher.Constraint("DistanceX", 0, 3, -1, 1, Q("21 mm")))
sketch20.addConstraint(Sketcher.Constraint("DistanceY", 0, 3, -1, 1, Q("8 mm")))
doc.recompute()
hole5 = doc.addObject("PartDesign::Hole", "Hole004")
body.addObject(hole5)
hole5.Profile = sketch20
hole5.ThreadType = "None"
hole5.Diameter = 4
hole5.DepthType = "Dimension"
hole5.Depth = 5
hole5.DrillPoint = "Angled"
hole5.DrillPointAngle = 118

sketch21 = doc.addObject("Sketcher::SketchObject", "Sketch020")
body.addObject(sketch21)
sketch21.AttachmentSupport = (doc.XZ_Plane, [""])
sketch21.MapMode = "FlatFace"
sketch21.AttachmentOffset = App.Placement(V(0, 0, 25.341168), App.Rotation())
sketch21.addGeometry(Part.Circle(V(-21, 8, 0), V(0, 0, 1), 2), False)
sketch21.addConstraint(Sketcher.Constraint("Diameter", 0, Q("4 mm")))
sketch21.addConstraint(Sketcher.Constraint("DistanceX", 0, 3, -1, 1, Q("21 mm")))
sketch21.addConstraint(Sketcher.Constraint("DistanceY", -1, 1, 0, 3, Q("8 mm")))
doc.recompute()
hole6 = doc.addObject("PartDesign::Hole", "Hole005")
body.addObject(hole6)
hole6.Profile = sketch21
hole6.ThreadType = "None"
hole6.Diameter = 4
hole6.DepthType = "Dimension"
hole6.Depth = 5
hole6.DrillPoint = "Angled"
hole6.DrillPointAngle = 118

doc.recompute()
